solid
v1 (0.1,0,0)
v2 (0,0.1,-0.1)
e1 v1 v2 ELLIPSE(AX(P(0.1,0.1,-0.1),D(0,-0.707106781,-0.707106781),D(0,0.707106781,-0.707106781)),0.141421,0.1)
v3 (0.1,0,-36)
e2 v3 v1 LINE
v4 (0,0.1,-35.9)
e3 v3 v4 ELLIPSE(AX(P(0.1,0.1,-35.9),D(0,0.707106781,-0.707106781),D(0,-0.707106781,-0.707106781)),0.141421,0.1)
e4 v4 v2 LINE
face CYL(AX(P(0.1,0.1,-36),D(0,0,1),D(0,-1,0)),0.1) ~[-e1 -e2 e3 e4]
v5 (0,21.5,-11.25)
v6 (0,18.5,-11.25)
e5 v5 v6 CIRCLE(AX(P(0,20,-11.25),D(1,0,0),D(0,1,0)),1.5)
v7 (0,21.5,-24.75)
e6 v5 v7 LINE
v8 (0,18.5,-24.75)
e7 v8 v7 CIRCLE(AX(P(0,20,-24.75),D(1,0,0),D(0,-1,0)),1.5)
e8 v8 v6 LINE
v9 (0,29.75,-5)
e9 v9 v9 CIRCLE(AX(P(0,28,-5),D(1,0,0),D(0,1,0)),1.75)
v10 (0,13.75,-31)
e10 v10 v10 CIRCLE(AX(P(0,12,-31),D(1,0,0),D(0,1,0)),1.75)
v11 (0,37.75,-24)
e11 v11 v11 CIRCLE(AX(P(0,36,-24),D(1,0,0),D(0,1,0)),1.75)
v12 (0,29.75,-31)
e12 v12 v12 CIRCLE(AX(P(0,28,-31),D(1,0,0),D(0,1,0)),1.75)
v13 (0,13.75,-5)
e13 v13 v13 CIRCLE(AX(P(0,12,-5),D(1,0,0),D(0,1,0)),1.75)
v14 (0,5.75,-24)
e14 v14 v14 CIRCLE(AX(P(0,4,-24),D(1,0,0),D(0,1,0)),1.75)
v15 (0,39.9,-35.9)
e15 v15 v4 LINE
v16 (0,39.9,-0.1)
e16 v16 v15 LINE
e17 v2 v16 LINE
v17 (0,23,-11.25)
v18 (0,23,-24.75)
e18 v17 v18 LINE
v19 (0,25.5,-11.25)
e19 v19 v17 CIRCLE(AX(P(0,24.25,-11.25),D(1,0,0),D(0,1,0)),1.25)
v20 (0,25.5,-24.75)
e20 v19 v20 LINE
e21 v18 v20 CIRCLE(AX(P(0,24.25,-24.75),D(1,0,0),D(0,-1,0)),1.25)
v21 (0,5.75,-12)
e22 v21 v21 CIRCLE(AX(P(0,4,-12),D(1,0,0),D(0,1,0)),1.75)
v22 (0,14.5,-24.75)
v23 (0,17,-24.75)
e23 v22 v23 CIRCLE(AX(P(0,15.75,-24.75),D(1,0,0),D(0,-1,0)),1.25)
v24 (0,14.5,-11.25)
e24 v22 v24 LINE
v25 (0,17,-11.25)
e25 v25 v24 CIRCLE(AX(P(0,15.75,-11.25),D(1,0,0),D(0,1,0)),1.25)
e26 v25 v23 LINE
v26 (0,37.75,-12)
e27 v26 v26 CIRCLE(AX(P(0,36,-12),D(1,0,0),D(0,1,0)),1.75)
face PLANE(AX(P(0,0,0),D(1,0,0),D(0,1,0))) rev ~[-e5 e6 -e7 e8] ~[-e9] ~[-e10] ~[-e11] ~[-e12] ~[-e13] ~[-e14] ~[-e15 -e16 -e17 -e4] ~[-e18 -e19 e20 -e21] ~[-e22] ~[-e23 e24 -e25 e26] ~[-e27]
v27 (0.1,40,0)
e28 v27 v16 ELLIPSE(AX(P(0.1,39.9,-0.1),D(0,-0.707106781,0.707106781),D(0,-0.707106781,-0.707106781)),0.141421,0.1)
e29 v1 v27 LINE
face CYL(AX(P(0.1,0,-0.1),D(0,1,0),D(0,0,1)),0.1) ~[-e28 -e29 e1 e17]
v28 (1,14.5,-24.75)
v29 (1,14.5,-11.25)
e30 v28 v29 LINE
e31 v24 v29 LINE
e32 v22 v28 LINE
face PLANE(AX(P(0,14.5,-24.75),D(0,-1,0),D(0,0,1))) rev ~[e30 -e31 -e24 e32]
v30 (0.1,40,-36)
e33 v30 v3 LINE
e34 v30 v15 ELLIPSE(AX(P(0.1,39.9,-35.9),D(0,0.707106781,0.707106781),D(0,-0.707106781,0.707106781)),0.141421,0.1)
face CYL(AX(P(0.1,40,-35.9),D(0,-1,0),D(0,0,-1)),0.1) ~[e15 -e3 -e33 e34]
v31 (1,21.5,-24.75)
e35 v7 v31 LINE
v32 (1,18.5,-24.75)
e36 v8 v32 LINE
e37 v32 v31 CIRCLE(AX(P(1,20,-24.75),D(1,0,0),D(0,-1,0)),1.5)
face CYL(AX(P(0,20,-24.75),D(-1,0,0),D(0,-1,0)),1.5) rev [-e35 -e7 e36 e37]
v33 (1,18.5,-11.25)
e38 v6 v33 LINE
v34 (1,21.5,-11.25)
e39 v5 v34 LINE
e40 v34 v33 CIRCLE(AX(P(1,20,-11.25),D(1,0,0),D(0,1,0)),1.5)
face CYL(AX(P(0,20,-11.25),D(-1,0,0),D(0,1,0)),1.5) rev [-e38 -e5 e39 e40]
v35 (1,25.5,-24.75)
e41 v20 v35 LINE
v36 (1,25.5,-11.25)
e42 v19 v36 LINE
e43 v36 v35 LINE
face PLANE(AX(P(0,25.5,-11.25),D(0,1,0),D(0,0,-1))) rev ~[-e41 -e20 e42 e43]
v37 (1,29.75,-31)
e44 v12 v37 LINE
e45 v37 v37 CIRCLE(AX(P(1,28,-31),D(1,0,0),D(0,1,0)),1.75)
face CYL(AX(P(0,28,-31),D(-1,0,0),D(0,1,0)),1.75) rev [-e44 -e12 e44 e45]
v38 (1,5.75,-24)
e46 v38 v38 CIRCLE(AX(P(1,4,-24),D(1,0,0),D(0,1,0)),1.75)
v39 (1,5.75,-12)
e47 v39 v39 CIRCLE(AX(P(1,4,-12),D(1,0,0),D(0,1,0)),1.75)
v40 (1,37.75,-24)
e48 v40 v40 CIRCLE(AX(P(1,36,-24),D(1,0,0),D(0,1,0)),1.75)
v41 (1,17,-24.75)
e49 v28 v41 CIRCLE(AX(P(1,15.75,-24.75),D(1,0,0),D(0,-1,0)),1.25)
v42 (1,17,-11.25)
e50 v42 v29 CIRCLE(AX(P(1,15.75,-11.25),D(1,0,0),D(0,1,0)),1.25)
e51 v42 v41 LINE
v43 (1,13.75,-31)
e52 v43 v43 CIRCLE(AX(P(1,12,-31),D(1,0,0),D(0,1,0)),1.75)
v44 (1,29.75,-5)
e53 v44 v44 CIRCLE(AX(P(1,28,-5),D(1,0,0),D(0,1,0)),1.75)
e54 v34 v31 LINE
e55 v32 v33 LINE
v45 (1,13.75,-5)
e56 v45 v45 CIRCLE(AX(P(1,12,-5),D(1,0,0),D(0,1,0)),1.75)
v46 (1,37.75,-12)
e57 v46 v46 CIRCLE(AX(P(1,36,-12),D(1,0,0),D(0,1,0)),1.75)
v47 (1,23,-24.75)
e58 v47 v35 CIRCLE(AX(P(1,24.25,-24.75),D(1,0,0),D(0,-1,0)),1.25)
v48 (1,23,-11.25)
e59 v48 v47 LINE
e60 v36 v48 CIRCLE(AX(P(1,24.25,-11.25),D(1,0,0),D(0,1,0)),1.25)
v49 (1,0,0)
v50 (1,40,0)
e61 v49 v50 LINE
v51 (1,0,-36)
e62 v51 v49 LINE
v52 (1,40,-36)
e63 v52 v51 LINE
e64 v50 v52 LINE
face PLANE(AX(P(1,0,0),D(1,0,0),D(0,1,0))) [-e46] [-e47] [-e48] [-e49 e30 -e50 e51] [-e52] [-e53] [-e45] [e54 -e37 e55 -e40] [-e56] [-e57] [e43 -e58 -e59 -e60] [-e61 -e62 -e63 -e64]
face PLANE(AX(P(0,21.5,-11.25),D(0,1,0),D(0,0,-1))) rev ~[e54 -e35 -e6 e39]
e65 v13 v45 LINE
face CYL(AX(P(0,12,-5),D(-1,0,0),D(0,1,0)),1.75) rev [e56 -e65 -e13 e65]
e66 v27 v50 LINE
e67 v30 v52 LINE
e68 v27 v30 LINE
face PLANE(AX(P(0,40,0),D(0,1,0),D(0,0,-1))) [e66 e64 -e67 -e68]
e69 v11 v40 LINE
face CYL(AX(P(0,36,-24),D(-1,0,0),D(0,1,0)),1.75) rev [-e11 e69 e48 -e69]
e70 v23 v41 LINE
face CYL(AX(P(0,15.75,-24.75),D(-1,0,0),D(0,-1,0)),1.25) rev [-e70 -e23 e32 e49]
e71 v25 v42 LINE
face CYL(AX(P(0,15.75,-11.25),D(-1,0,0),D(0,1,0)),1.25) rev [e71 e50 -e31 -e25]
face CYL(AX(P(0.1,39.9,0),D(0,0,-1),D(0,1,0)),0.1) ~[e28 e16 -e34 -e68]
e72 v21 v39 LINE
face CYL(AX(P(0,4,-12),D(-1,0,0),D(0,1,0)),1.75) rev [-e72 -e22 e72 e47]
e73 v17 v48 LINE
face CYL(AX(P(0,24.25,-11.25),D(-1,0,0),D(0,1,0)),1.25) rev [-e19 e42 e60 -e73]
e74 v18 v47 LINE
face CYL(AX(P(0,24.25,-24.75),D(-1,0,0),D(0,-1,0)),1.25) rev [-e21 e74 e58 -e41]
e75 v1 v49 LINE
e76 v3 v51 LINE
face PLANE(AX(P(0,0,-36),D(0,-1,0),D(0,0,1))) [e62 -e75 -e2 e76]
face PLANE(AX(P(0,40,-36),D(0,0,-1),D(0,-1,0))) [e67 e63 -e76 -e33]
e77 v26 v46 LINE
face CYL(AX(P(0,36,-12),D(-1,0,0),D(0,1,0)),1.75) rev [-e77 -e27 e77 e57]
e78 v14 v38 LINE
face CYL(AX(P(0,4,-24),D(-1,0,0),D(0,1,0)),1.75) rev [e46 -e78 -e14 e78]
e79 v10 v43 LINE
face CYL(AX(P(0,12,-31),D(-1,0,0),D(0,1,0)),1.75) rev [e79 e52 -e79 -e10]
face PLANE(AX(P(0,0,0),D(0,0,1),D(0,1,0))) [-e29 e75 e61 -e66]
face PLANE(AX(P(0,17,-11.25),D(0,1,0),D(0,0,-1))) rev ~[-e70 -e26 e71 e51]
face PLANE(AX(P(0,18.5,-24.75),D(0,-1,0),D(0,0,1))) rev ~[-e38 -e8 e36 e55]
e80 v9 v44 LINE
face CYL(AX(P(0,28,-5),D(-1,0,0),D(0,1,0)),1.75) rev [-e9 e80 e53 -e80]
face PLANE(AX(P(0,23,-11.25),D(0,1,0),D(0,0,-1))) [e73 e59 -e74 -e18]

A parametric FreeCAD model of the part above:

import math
import FreeCAD as App
import Part
import Sketcher
Q = App.Units.Quantity


def edges_at(feature, points):
    """Names of the edges that pass closest to the given points."""
    edges = feature.Shape.Edges
    near = lambda p: min(range(len(edges)), key=lambda i: edges[i].distToShape(Part.Vertex(*p))[0])
    return sorted({f"Edge{near(p) + 1}" for p in points})

doc = App.newDocument("Part")
body = doc.addObject("PartDesign::Body", "Body")

# Sketch on YZ plane
sketch1 = doc.addObject("Sketcher::SketchObject", "Sketch")
body.addObject(sketch1)
sketch1.AttachmentSupport = (doc.YZ_Plane, [""])
sketch1.MapMode = "FlatFace"
sketch1.addGeometry([
    Part.LineSegment(App.Vector(40, 0, 0), App.Vector(0, 0, 0)),  # 0
    Part.LineSegment(App.Vector(0, 0, 0), App.Vector(0, -36, 0)),  # 1
    Part.LineSegment(App.Vector(0, -36, 0), App.Vector(40, -36, 0)),  # 2
    Part.LineSegment(App.Vector(40, -36, 0), App.Vector(40, 0, 0)),  # 3
    Part.Circle(App.Vector(12, -31, 0), App.Vector(0, 0, 1), 1.8),  # 4
    Part.Circle(App.Vector(4, -24, 0), App.Vector(0, 0, 1), 1.8),  # 5
    Part.Circle(App.Vector(28, -31, 0), App.Vector(0, 0, 1), 1.8),  # 6
    Part.Circle(App.Vector(36, -24, 0), App.Vector(0, 0, 1), 1.8),  # 7
    Part.Circle(App.Vector(4, -12, 0), App.Vector(0, 0, 1), 1.8),  # 8
    Part.ArcOfCircle(Part.Circle(App.Vector(15.8, -11.2, 0), App.Vector(0, 0, 1), 1.2), math.radians(0), math.radians(180)),  # 9
    Part.LineSegment(App.Vector(17, -11.2, 0), App.Vector(17, -24.8, 0)),  # 10
    Part.ArcOfCircle(Part.Circle(App.Vector(15.8, -24.8, 0), App.Vector(0, 0, 1), 1.2), math.radians(180), math.radians(360)),  # 11
    Part.LineSegment(App.Vector(14.5, -24.8, 0), App.Vector(14.5, -11.2, 0)),  # 12
    Part.Circle(App.Vector(12, -5, 0), App.Vector(0, 0, 1), 1.8),  # 13
    Part.ArcOfCircle(Part.Circle(App.Vector(20, -11.2, 0), App.Vector(0, 0, 1), 1.5), math.radians(0), math.radians(180)),  # 14
    Part.LineSegment(App.Vector(21.5, -11.2, 0), App.Vector(21.5, -24.8, 0)),  # 15
    Part.ArcOfCircle(Part.Circle(App.Vector(20, -24.8, 0), App.Vector(0, 0, 1), 1.5), math.radians(180), math.radians(360)),  # 16
    Part.LineSegment(App.Vector(18.5, -24.8, 0), App.Vector(18.5, -11.2, 0)),  # 17
    Part.ArcOfCircle(Part.Circle(App.Vector(24.2, -11.2, 0), App.Vector(0, 0, 1), 1.2), math.radians(0), math.radians(180)),  # 18
    Part.LineSegment(App.Vector(25.5, -11.2, 0), App.Vector(25.5, -24.8, 0)),  # 19
    Part.ArcOfCircle(Part.Circle(App.Vector(24.2, -24.8, 0), App.Vector(0, 0, 1), 1.2), math.radians(180), math.radians(360)),  # 20
    Part.LineSegment(App.Vector(23, -24.8, 0), App.Vector(23, -11.2, 0)),  # 21
    Part.Circle(App.Vector(36, -12, 0), App.Vector(0, 0, 1), 1.8),  # 22
    Part.Circle(App.Vector(28, -5, 0), App.Vector(0, 0, 1), 1.8),  # 23
], False)
sketch1.addConstraint([
    Sketcher.Constraint("Coincident", 0, 2, 1, 1),
    Sketcher.Constraint("Coincident", 1, 2, 2, 1),
    Sketcher.Constraint("Coincident", 2, 2, 3, 1),
    Sketcher.Constraint("Coincident", 3, 2, 0, 1),
    Sketcher.Constraint("Tangent", 9, 1, 10, 1),
    Sketcher.Constraint("Tangent", 10, 2, 11, 2),
    Sketcher.Constraint("Tangent", 11, 1, 12, 1),
    Sketcher.Constraint("Tangent", 12, 2, 9, 2),
    Sketcher.Constraint("Tangent", 14, 1, 15, 1),
    Sketcher.Constraint("Tangent", 15, 2, 16, 2),
    Sketcher.Constraint("Tangent", 16, 1, 17, 1),
    Sketcher.Constraint("Tangent", 17, 2, 14, 2),
    Sketcher.Constraint("Tangent", 18, 1, 19, 1),
    Sketcher.Constraint("Tangent", 19, 2, 20, 2),
    Sketcher.Constraint("Tangent", 20, 1, 21, 1),
    Sketcher.Constraint("Tangent", 21, 2, 18, 2),
    Sketcher.Constraint("Horizontal", 0),
    Sketcher.Constraint("Vertical", 1),
    Sketcher.Constraint("Horizontal", 2),
    Sketcher.Constraint("Vertical", 3),
    Sketcher.Constraint("Vertical", 10),
    Sketcher.Constraint("Vertical", 12),
    Sketcher.Constraint("Vertical", 15),
    Sketcher.Constraint("Vertical", 17),
    Sketcher.Constraint("Vertical", 19),
    Sketcher.Constraint("Vertical", 21),
    Sketcher.Constraint("Coincident", 0, 2, -1, 1),
    Sketcher.Constraint("Equal", 4, 5),
    Sketcher.Constraint("Equal", 5, 6),
    Sketcher.Constraint("Equal", 6, 7),
    Sketcher.Constraint("Equal", 7, 8),
    Sketcher.Constraint("Equal", 8, 13),
    Sketcher.Constraint("Equal", 11, 18),
    Sketcher.Constraint("Equal", 13, 22),
    Sketcher.Constraint("Equal", 22, 23),
    Sketcher.Constraint("Horizontal", 4, 3, 6, 3),
    Sketcher.Constraint("Horizontal", 5, 3, 7, 3),
    Sketcher.Constraint("Horizontal", 9, 3, 14, 3),
    Sketcher.Constraint("Horizontal", 11, 3, 16, 3),
    Sketcher.Constraint("Horizontal", 14, 3, 18, 3),
    Sketcher.Constraint("Horizontal", 16, 3, 20, 3),
    Sketcher.Constraint("Horizontal", 8, 3, 22, 3),
    Sketcher.Constraint("Horizontal", 13, 3, 23, 3),
    Sketcher.Constraint("Vertical", 5, 3, 8, 3),
    Sketcher.Constraint("Vertical", 4, 3, 13, 3),
    Sketcher.Constraint("Vertical", 7, 3, 22, 3),
    Sketcher.Constraint("Vertical", 6, 3, 23, 3),
    Sketcher.Constraint("Diameter", 4, Q("3.5 mm")),
    Sketcher.Constraint("Radius", 14, Q("1.5 mm")),
    Sketcher.Constraint("DistanceX", 0, 2, 0, 1, Q("40 mm")),
    Sketcher.Constraint("DistanceY", 1, 2, 1, 1, Q("36 mm")),
    Sketcher.Constraint("Radius", 9, Q("1.25 mm")),
    Sketcher.Constraint("DistanceY", 10, 2, 10, 1, Q("13.5 mm")),
    Sketcher.Constraint("DistanceX", -1, 1, 7, 3, Q("36 mm")),
    Sketcher.Constraint("DistanceX", 5, 3, 4, 3, Q("8 mm")),
    Sketcher.Constraint("DistanceX", 4, 3, 6, 3, Q("16 mm")),
    Sketcher.Constraint("DistanceX", 6, 3, 7, 3, Q("8 mm")),
    Sketcher.Constraint("DistanceX", 13, 3, 14, 3, Q("8 mm")),
    Sketcher.Constraint("DistanceX", 4, 3, 11, 1, Q("2.5 mm")),
    Sketcher.Constraint("DistanceX", 18, 1, 23, 3, Q("2.5 mm")),
    Sketcher.Constraint("DistanceY", 9, 3, -1, 1, Q("11.25 mm")),
    Sketcher.Constraint("DistanceY", 4, 3, -1, 1, Q("31 mm")),
    Sketcher.Constraint("DistanceY", 5, 3, -1, 1, Q("24 mm")),
    Sketcher.Constraint("DistanceY", 8, 3, -1, 1, Q("12 mm")),
    Sketcher.Constraint("DistanceY", 13, 3, -1, 1, Q("5 mm")),
])
pad1 = doc.addObject("PartDesign::Pad", "Pad")
body.addObject(pad1)
pad1.Profile = sketch1
pad1.Length = 1
doc.recompute()

fillet = doc.addObject("PartDesign::Fillet", "Fillet")
body.addObject(fillet)
fillet.Base = (pad1, edges_at(pad1, [
    (0, 20, -36),
    (0, 40, -18),
    (0, 20, 0),
    (0, 0, -18),
]))
fillet.Radius = 0.1

doc.recompute()
